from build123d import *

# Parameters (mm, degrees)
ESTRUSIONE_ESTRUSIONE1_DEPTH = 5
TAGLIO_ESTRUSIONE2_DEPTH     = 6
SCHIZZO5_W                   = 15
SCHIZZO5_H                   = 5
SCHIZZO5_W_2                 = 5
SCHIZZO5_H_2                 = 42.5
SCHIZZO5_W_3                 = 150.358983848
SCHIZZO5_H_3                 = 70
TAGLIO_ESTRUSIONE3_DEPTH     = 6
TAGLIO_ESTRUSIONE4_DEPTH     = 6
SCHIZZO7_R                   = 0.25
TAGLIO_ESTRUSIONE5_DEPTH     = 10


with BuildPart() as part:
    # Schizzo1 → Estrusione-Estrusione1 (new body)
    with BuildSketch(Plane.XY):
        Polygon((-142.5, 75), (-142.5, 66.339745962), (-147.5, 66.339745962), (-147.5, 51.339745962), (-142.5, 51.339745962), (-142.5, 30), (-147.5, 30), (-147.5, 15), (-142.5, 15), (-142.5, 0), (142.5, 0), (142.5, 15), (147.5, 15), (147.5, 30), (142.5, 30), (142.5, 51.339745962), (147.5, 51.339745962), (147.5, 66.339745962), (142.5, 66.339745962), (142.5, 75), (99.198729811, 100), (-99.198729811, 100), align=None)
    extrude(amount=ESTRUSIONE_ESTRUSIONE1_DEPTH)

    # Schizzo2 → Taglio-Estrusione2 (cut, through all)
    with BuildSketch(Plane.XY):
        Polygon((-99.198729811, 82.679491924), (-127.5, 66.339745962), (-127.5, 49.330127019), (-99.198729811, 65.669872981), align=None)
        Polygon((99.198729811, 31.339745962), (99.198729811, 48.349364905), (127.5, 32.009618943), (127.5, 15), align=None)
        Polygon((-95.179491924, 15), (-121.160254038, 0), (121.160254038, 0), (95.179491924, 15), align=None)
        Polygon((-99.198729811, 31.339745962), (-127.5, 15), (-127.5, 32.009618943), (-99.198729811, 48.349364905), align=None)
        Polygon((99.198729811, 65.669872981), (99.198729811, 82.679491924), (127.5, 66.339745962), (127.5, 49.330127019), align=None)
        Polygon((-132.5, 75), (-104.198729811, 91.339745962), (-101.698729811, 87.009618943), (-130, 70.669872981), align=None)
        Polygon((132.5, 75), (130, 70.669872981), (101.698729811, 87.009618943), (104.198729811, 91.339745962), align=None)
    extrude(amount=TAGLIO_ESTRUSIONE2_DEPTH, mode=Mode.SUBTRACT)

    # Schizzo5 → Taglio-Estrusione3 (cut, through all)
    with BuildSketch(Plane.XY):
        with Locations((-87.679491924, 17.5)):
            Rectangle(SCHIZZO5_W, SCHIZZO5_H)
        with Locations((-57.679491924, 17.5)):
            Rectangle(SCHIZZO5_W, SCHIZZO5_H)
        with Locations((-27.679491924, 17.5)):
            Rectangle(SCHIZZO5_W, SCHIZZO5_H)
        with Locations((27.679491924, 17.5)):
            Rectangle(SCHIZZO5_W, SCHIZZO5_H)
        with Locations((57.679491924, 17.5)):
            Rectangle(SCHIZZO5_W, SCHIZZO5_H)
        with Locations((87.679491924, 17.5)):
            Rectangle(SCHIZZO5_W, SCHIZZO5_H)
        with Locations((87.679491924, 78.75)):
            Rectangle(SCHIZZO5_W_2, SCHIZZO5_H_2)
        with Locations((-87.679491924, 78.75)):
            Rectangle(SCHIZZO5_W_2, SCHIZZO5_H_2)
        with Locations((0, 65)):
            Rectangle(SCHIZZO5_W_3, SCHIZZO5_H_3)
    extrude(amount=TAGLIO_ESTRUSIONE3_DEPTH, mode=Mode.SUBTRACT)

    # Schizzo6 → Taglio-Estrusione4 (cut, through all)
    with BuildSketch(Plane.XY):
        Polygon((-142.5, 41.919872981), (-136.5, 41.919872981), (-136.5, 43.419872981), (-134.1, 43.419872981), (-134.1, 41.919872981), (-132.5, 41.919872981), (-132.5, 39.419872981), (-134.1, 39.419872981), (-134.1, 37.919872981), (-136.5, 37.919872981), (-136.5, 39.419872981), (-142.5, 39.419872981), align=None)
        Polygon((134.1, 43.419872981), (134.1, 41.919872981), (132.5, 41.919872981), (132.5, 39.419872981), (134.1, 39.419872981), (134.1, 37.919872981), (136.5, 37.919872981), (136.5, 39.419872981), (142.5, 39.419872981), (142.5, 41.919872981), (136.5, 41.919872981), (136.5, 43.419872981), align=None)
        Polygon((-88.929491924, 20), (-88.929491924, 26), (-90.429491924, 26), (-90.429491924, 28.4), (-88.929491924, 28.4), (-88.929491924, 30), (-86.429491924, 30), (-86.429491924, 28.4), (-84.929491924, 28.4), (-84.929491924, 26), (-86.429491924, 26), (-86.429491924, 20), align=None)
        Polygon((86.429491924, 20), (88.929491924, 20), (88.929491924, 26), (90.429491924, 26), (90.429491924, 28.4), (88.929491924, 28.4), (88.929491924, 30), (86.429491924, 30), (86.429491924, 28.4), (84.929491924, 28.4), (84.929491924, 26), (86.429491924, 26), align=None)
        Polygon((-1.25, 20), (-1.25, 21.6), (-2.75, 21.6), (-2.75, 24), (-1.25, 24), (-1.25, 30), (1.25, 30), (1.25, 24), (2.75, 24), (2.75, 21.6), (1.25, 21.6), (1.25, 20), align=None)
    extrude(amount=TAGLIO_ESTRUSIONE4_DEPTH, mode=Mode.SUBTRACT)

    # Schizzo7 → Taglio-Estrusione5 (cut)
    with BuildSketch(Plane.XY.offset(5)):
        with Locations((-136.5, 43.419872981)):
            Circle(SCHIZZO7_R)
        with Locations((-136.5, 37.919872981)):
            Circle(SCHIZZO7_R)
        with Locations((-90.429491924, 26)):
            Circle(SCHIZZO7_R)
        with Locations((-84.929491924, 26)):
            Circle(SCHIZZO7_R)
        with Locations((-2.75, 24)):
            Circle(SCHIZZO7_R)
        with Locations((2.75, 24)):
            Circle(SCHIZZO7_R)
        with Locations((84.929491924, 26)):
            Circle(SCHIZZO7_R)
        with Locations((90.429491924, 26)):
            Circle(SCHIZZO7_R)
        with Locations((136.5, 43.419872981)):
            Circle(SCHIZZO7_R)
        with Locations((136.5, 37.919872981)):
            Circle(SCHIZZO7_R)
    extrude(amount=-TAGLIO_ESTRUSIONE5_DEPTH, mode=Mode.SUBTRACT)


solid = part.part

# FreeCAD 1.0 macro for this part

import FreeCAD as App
import Part
import Sketcher

V = App.Vector
Q = App.Units.Quantity

doc = App.newDocument("Part")
body = doc.addObject("PartDesign::Body", "Body")

# Sketch on XY plane
sketch1 = body.newObject("Sketcher::SketchObject", "Sketch")
sketch1.AttachmentSupport = (doc.getObject("XY_Plane"), [""])
sketch1.MapMode = "FlatFace"
sketch1.addGeometry([
    Part.LineSegment(V(-142.5, 75, 0), V(-142.5, 66.339746, 0)),  # 0
    Part.LineSegment(V(-142.5, 66.339746, 0), V(-147.5, 66.339746, 0)),  # 1
    Part.LineSegment(V(-147.5, 66.339746, 0), V(-147.5, 51.339746, 0)),  # 2
    Part.LineSegment(V(-147.5, 51.339746, 0), V(-142.5, 51.339746, 0)),  # 3
    Part.LineSegment(V(-142.5, 51.339746, 0), V(-142.5, 30, 0)),  # 4
    Part.LineSegment(V(-142.5, 30, 0), V(-147.5, 30, 0)),  # 5
    Part.LineSegment(V(-147.5, 30, 0), V(-147.5, 15, 0)),  # 6
    Part.LineSegment(V(-147.5, 15, 0), V(-142.5, 15, 0)),  # 7
    Part.LineSegment(V(-142.5, 15, 0), V(-142.5, 0, 0)),  # 8
    Part.LineSegment(V(-142.5, 0, 0), V(142.5, 0, 0)),  # 9
    Part.LineSegment(V(142.5, 0, 0), V(142.5, 15, 0)),  # 10
    Part.LineSegment(V(142.5, 15, 0), V(147.5, 15, 0)),  # 11
    Part.LineSegment(V(147.5, 15, 0), V(147.5, 30, 0)),  # 12
    Part.LineSegment(V(147.5, 30, 0), V(142.5, 30, 0)),  # 13
    Part.LineSegment(V(142.5, 30, 0), V(142.5, 51.339746, 0)),  # 14
    Part.LineSegment(V(142.5, 51.339746, 0), V(147.5, 51.339746, 0)),  # 15
    Part.LineSegment(V(147.5, 51.339746, 0), V(147.5, 66.339746, 0)),  # 16
    Part.LineSegment(V(147.5, 66.339746, 0), V(142.5, 66.339746, 0)),  # 17
    Part.LineSegment(V(142.5, 66.339746, 0), V(142.5, 75, 0)),  # 18
    Part.LineSegment(V(142.5, 75, 0), V(99.19873, 100, 0)),  # 19
    Part.LineSegment(V(99.19873, 100, 0), V(-99.19873, 100, 0)),  # 20
    Part.LineSegment(V(-99.19873, 100, 0), V(-142.5, 75, 0)),  # 21
], False)
sketch1.addConstraint([
    Sketcher.Constraint("Coincident", 0, 2, 1, 1),
    Sketcher.Constraint("Coincident", 1, 2, 2, 1),
    Sketcher.Constraint("Coincident", 2, 2, 3, 1),
    Sketcher.Constraint("Coincident", 3, 2, 4, 1),
    Sketcher.Constraint("Coincident", 4, 2, 5, 1),
    Sketcher.Constraint("Coincident", 5, 2, 6, 1),
    Sketcher.Constraint("Coincident", 6, 2, 7, 1),
    Sketcher.Constraint("Coincident", 7, 2, 8, 1),
    Sketcher.Constraint("Coincident", 8, 2, 9, 1),
    Sketcher.Constraint("Coincident", 9, 2, 10, 1),
    Sketcher.Constraint("Coincident", 10, 2, 11, 1),
    Sketcher.Constraint("Coincident", 11, 2, 12, 1),
    Sketcher.Constraint("Coincident", 12, 2, 13, 1),
    Sketcher.Constraint("Coincident", 13, 2, 14, 1),
    Sketcher.Constraint("Coincident", 14, 2, 15, 1),
    Sketcher.Constraint("Coincident", 15, 2, 16, 1),
    Sketcher.Constraint("Coincident", 16, 2, 17, 1),
    Sketcher.Constraint("Coincident", 17, 2, 18, 1),
    Sketcher.Constraint("Coincident", 18, 2, 19, 1),
    Sketcher.Constraint("Coincident", 19, 2, 20, 1),
    Sketcher.Constraint("Coincident", 20, 2, 21, 1),
    Sketcher.Constraint("Coincident", 21, 2, 0, 1),
    Sketcher.Constraint("Vertical", 0),
    Sketcher.Constraint("Horizontal", 1),
    Sketcher.Constraint("Vertical", 2),
    Sketcher.Constraint("Horizontal", 3),
    Sketcher.Constraint("Vertical", 4),
    Sketcher.Constraint("Horizontal", 5),
    Sketcher.Constraint("Vertical", 6),
    Sketcher.Constraint("Horizontal", 7),
    Sketcher.Constraint("Vertical", 8),
    Sketcher.Constraint("Horizontal", 9),
    Sketcher.Constraint("Vertical", 10),
    Sketcher.Constraint("Horizontal", 11),
    Sketcher.Constraint("Vertical", 12),
    Sketcher.Constraint("Horizontal", 13),
    Sketcher.Constraint("Vertical", 14),
    Sketcher.Constraint("Horizontal", 15),
    Sketcher.Constraint("Vertical", 16),
    Sketcher.Constraint("Horizontal", 17),
    Sketcher.Constraint("Vertical", 18),
    Sketcher.Constraint("Horizontal", 20),
    Sketcher.Constraint("Symmetric", 8, 2, 9, 2, -1, 1),
    Sketcher.Constraint("Symmetric", 6, 2, 11, 2, -2),
    Sketcher.Constraint("Symmetric", 4, 2, 13, 2, -2),
    Sketcher.Constraint("Symmetric", 2, 2, 15, 2, -2),
    Sketcher.Constraint("Symmetric", 0, 2, 17, 2, -2),
    Sketcher.Constraint("Horizontal", 18, 2, 21, 2),
    Sketcher.Constraint("Vertical", 0, 2, 3, 2),
    Sketcher.Constraint("Vertical", 2, 2, 5, 2),
    Sketcher.Constraint("Vertical", 4, 2, 7, 2),
    Sketcher.Constraint("Equal", 2, 6),
    Sketcher.Constraint("Equal", 6, 8),
    Sketcher.Constraint("Equal", 19, 21),
    Sketcher.Constraint("DistanceX", 1, 2, 1, 1, Q("5 mm")),
    Sketcher.Constraint("DistanceX", 9, 1, 9, 2, Q("285 mm")),
    Sketcher.Constraint("DistanceY", 2, 2, 2, 1, Q("15 mm")),
    Sketcher.Constraint("Angle", 19, Q("150 deg")),
    Sketcher.Constraint("Distance", 19, Q("50 mm")),
    Sketcher.Constraint("DistanceY", -1, 1, 18, 2, Q("75 mm")),
    Sketcher.Constraint("DistanceY", 0, 2, 0, 1, Q("8.660254 mm")),
])
pad1 = body.newObject("PartDesign::Pad", "Pad")
pad1.Profile = sketch1
pad1.Length = 5

# Sketch on XY plane
sketch2 = body.newObject("Sketcher::SketchObject", "Sketch001")
sketch2.AttachmentSupport = (doc.getObject("XY_Plane"), [""])
sketch2.MapMode = "FlatFace"
sketch2.addGeometry([
    Part.LineSegment(V(-99.19873, 82.679492, 0), V(-127.5, 66.339746, 0)),  # 0
    Part.LineSegment(V(-127.5, 66.339746, 0), V(-127.5, 49.330127, 0)),  # 1
    Part.LineSegment(V(-127.5, 49.330127, 0), V(-99.19873, 65.669873, 0)),  # 2
    Part.LineSegment(V(-99.19873, 65.669873, 0), V(-99.19873, 82.679492, 0)),  # 3
    Part.LineSegment(V(99.19873, 48.349365, 0), V(99.19873, 31.339746, 0)),  # 4
    Part.LineSegment(V(99.19873, 31.339746, 0), V(127.5, 15, 0)),  # 5
    Part.LineSegment(V(127.5, 15, 0), V(127.5, 32.009619, 0)),  # 6
    Part.LineSegment(V(127.5, 32.009619, 0), V(99.19873, 48.349365, 0)),  # 7
    Part.LineSegment(V(-95.179492, 15, 0), V(-121.160254, 0, 0)),  # 8
    Part.LineSegment(V(-121.160254, 0, 0), V(121.160254, 0, 0)),  # 9
    Part.LineSegment(V(121.160254, 0, 0), V(95.179492, 15, 0)),  # 10
    Part.LineSegment(V(95.179492, 15, 0), V(-95.179492, 15, 0)),  # 11
    Part.LineSegment(V(-127.5, 15, 0), V(-99.19873, 31.339746, 0)),  # 12
    Part.LineSegment(V(-99.19873, 31.339746, 0), V(-99.19873, 48.349365, 0)),  # 13
    Part.LineSegment(V(-99.19873, 48.349365, 0), V(-127.5, 32.009619, 0)),  # 14
    Part.LineSegment(V(-127.5, 32.009619, 0), V(-127.5, 15, 0)),  # 15
    Part.LineSegment(V(99.19873, 82.679492, 0), V(99.19873, 65.669873, 0)),  # 16
    Part.LineSegment(V(99.19873, 65.669873, 0), V(127.5, 49.330127, 0)),  # 17
    Part.LineSegment(V(127.5, 49.330127, 0), V(127.5, 66.339746, 0)),  # 18
    Part.LineSegment(V(127.5, 66.339746, 0), V(99.19873, 82.679492, 0)),  # 19
    Part.LineSegment(V(-104.19873, 91.339746, 0), V(-132.5, 75, 0)),  # 20
    Part.LineSegment(V(-132.5, 75, 0), V(-130, 70.669873, 0)),  # 21
    Part.LineSegment(V(-130, 70.669873, 0), V(-101.69873, 87.009619, 0)),  # 22
    Part.LineSegment(V(-101.69873, 87.009619, 0), V(-104.19873, 91.339746, 0)),  # 23
    Part.LineSegment(V(130, 70.669873, 0), V(132.5, 75, 0)),  # 24
    Part.LineSegment(V(132.5, 75, 0), V(104.19873, 91.339746, 0)),  # 25
    Part.LineSegment(V(104.19873, 91.339746, 0), V(101.69873, 87.009619, 0)),  # 26
    Part.LineSegment(V(101.69873, 87.009619, 0), V(130, 70.669873, 0)),  # 27
], False)
sketch2.addConstraint([
    Sketcher.Constraint("Coincident", 0, 2, 1, 1),
    Sketcher.Constraint("Coincident", 1, 2, 2, 1),
    Sketcher.Constraint("Coincident", 2, 2, 3, 1),
    Sketcher.Constraint("Coincident", 3, 2, 0, 1),
    Sketcher.Constraint("Coincident", 4, 2, 5, 1),
    Sketcher.Constraint("Coincident", 5, 2, 6, 1),
    Sketcher.Constraint("Coincident", 6, 2, 7, 1),
    Sketcher.Constraint("Coincident", 7, 2, 4, 1),
    Sketcher.Constraint("Coincident", 8, 2, 9, 1),
    Sketcher.Constraint("Coincident", 9, 2, 10, 1),
    Sketcher.Constraint("Coincident", 10, 2, 11, 1),
    Sketcher.Constraint("Coincident", 11, 2, 8, 1),
    Sketcher.Constraint("Coincident", 12, 2, 13, 1),
    Sketcher.Constraint("Coincident", 13, 2, 14, 1),
    Sketcher.Constraint("Coincident", 14, 2, 15, 1),
    Sketcher.Constraint("Coincident", 15, 2, 12, 1),
    Sketcher.Constraint("Coincident", 16, 2, 17, 1),
    Sketcher.Constraint("Coincident", 17, 2, 18, 1),
    Sketcher.Constraint("Coincident", 18, 2, 19, 1),
    Sketcher.Constraint("Coincident", 19, 2, 16, 1),
    Sketcher.Constraint("Coincident", 20, 2, 21, 1),
    Sketcher.Constraint("Coincident", 21, 2, 22, 1),
    Sketcher.Constraint("Coincident", 22, 2, 23, 1),
    Sketcher.Constraint("Coincident", 23, 2, 20, 1),
    Sketcher.Constraint("Coincident", 24, 2, 25, 1),
    Sketcher.Constraint("Coincident", 25, 2, 26, 1),
    Sketcher.Constraint("Coincident", 26, 2, 27, 1),
    Sketcher.Constraint("Coincident", 27, 2, 24, 1),
    Sketcher.Constraint("Vertical", 1),
    Sketcher.Constraint("Vertical", 3),
    Sketcher.Constraint("Vertical", 4),
    Sketcher.Constraint("Vertical", 6),
    Sketcher.Constraint("Horizontal", 9),
    Sketcher.Constraint("Horizontal", 11),
    Sketcher.Constraint("Vertical", 13),
    Sketcher.Constraint("Vertical", 15),
    Sketcher.Constraint("Vertical", 16),
    Sketcher.Constraint("Vertical", 18),
    Sketcher.Constraint("Symmetric", 8, 2, 9, 2, -1, 1),
    Sketcher.Constraint("Symmetric", 4, 2, 12, 2, -2),
    Sketcher.Constraint("Symmetric", 6, 2, 14, 2, -2),
    Sketcher.Constraint("Symmetric", 2, 2, 16, 2, -2),
    Sketcher.Constraint("Symmetric", 1, 2, 17, 2, -2),
    Sketcher.Constraint("Symmetric", 20, 2, 24, 2, -2),
    Sketcher.Constraint("Symmetric", 23, 2, 25, 2, -2),
    Sketcher.Constraint("Symmetric", 22, 2, 26, 2, -2),
    Sketcher.Constraint("Symmetric", 21, 2, 27, 2, -2),
    Sketcher.Constraint("Parallel", 0, 2),
    Sketcher.Constraint("Parallel", 5, 7),
    Sketcher.Constraint("Parallel", 2, 8),
    Sketcher.Constraint("Parallel", 7, 10),
    Sketcher.Constraint("Parallel", 8, 12),
    Sketcher.Constraint("Parallel", 12, 14),
    Sketcher.Constraint("Parallel", 10, 17),
    Sketcher.Constraint("Parallel", 17, 19),
    Sketcher.Constraint("Parallel", 14, 20),
    Sketcher.Constraint("Perpendicular", 20, 21),
    Sketcher.Constraint("Perpendicular", 21, 22),
    Sketcher.Constraint("Perpendicular", 22, 23),
    Sketcher.Constraint("Horizontal", 5, 2, 10, 2),
    Sketcher.Constraint("Horizontal", 0, 2, 18, 2),
    Sketcher.Constraint("Vertical", 3, 2, 12, 2),
    Sketcher.Constraint("Vertical", 1, 2, 14, 2),
    Sketcher.Constraint("Equal", 3, 4),
    Sketcher.Constraint("Equal", 19, 20),
    Sketcher.Constraint("Angle", 0, Q("-150 deg")),
    Sketcher.Constraint("Distance", 8, Q("30 mm")),
    Sketcher.Constraint("Distance", 21, Q("5 mm")),
    Sketcher.Constraint("DistanceY", -1, 1, 20, 2, Q("75 mm")),
    Sketcher.Constraint("DistanceX", 21, 2, -1, 1, Q("130 mm")),
    Sketcher.Constraint("DistanceY", 4, 2, 0, 2, Q("35 mm")),
    Sketcher.Constraint("DistanceX", 1, 2, 5, 2, Q("255 mm")),
    Sketcher.Constraint("DistanceY", 2, 2, 21, 2, Q("5 mm")),
    Sketcher.Constraint("DistanceX", 9, 1, 9, 2, Q("242.320508 mm")),
    Sketcher.Constraint("DistanceY", 1, 2, 1, 1, Q("17.009619 mm")),
])
pocket1 = body.newObject("PartDesign::Pocket", "Pocket")
pocket1.Profile = sketch2
pocket1.Type = "ThroughAll"
pocket1.Reversed = True

# Sketch on XY plane
sketch3 = body.newObject("Sketcher::SketchObject", "Sketch002")
sketch3.AttachmentSupport = (doc.getObject("XY_Plane"), [""])
sketch3.MapMode = "FlatFace"
sketch3.addGeometry([
    Part.LineSegment(V(-95.179492, 20, 0), V(-95.179492, 15, 0)),  # 0
    Part.LineSegment(V(-95.179492, 15, 0), V(-80.179492, 15, 0)),  # 1
    Part.LineSegment(V(-80.179492, 15, 0), V(-80.179492, 20, 0)),  # 2
    Part.LineSegment(V(-80.179492, 20, 0), V(-95.179492, 20, 0)),  # 3
    Part.LineSegment(V(-65.179492, 20, 0), V(-65.179492, 15, 0)),  # 4
    Part.LineSegment(V(-65.179492, 15, 0), V(-50.179492, 15, 0)),  # 5
    Part.LineSegment(V(-50.179492, 15, 0), V(-50.179492, 20, 0)),  # 6
    Part.LineSegment(V(-50.179492, 20, 0), V(-65.179492, 20, 0)),  # 7
    Part.LineSegment(V(-35.179492, 20, 0), V(-35.179492, 15, 0)),  # 8
    Part.LineSegment(V(-35.179492, 15, 0), V(-20.179492, 15, 0)),  # 9
    Part.LineSegment(V(-20.179492, 15, 0), V(-20.179492, 20, 0)),  # 10
    Part.LineSegment(V(-20.179492, 20, 0), V(-35.179492, 20, 0)),  # 11
    Part.LineSegment(V(20.179492, 20, 0), V(20.179492, 15, 0)),  # 12
    Part.LineSegment(V(20.179492, 15, 0), V(35.179492, 15, 0)),  # 13
    Part.LineSegment(V(35.179492, 15, 0), V(35.179492, 20, 0)),  # 14
    Part.LineSegment(V(35.179492, 20, 0), V(20.179492, 20, 0)),  # 15
    Part.LineSegment(V(50.179492, 20, 0), V(50.179492, 15, 0)),  # 16
    Part.LineSegment(V(50.179492, 15, 0), V(65.179492, 15, 0)),  # 17
    Part.LineSegment(V(65.179492, 15, 0), V(65.179492, 20, 0)),  # 18
    Part.LineSegment(V(65.179492, 20, 0), V(50.179492, 20, 0)),  # 19
    Part.LineSegment(V(80.179492, 20, 0), V(80.179492, 15, 0)),  # 20
    Part.LineSegment(V(80.179492, 15, 0), V(95.179492, 15, 0)),  # 21
    Part.LineSegment(V(95.179492, 15, 0), V(95.179492, 20, 0)),  # 22
    Part.LineSegment(V(95.179492, 20, 0), V(80.179492, 20, 0)),  # 23
    Part.LineSegment(V(85.179492, 100, 0), V(85.179492, 57.5, 0)),  # 24
    Part.LineSegment(V(85.179492, 57.5, 0), V(90.179492, 57.5, 0)),  # 25
    Part.LineSegment(V(90.179492, 57.5, 0), V(90.179492, 100, 0)),  # 26
    Part.LineSegment(V(90.179492, 100, 0), V(85.179492, 100, 0)),  # 27
    Part.LineSegment(V(-90.179492, 100, 0), V(-90.179492, 57.5, 0)),  # 28
    Part.LineSegment(V(-90.179492, 57.5, 0), V(-85.179492, 57.5, 0)),  # 29
    Part.LineSegment(V(-85.179492, 57.5, 0), V(-85.179492, 100, 0)),  # 30
    Part.LineSegment(V(-85.179492, 100, 0), V(-90.179492, 100, 0)),  # 31
    Part.LineSegment(V(-75.179492, 100, 0), V(-75.179492, 30, 0)),  # 32
    Part.LineSegment(V(-75.179492, 30, 0), V(75.179492, 30, 0)),  # 33
    Part.LineSegment(V(75.179492, 30, 0), V(75.179492, 100, 0)),  # 34
    Part.LineSegment(V(75.179492, 100, 0), V(-75.179492, 100, 0)),  # 35
], False)
sketch3.addConstraint([
    Sketcher.Constraint("Coincident", 0, 2, 1, 1),
    Sketcher.Constraint("Coincident", 1, 2, 2, 1),
    Sketcher.Constraint("Coincident", 2, 2, 3, 1),
    Sketcher.Constraint("Coincident", 3, 2, 0, 1),
    Sketcher.Constraint("Coincident", 4, 2, 5, 1),
    Sketcher.Constraint("Coincident", 5, 2, 6, 1),
    Sketcher.Constraint("Coincident", 6, 2, 7, 1),
    Sketcher.Constraint("Coincident", 7, 2, 4, 1),
    Sketcher.Constraint("Coincident", 8, 2, 9, 1),
    Sketcher.Constraint("Coincident", 9, 2, 10, 1),
    Sketcher.Constraint("Coincident", 10, 2, 11, 1),
    Sketcher.Constraint("Coincident", 11, 2, 8, 1),
    Sketcher.Constraint("Coincident", 12, 2, 13, 1),
    Sketcher.Constraint("Coincident", 13, 2, 14, 1),
    Sketcher.Constraint("Coincident", 14, 2, 15, 1),
    Sketcher.Constraint("Coincident", 15, 2, 12, 1),
    Sketcher.Constraint("Coincident", 16, 2, 17, 1),
    Sketcher.Constraint("Coincident", 17, 2, 18, 1),
    Sketcher.Constraint("Coincident", 18, 2, 19, 1),
    Sketcher.Constraint("Coincident", 19, 2, 16, 1),
    Sketcher.Constraint("Coincident", 20, 2, 21, 1),
    Sketcher.Constraint("Coincident", 21, 2, 22, 1),
    Sketcher.Constraint("Coincident", 22, 2, 23, 1),
    Sketcher.Constraint("Coincident", 23, 2, 20, 1),
    Sketcher.Constraint("Coincident", 24, 2, 25, 1),
    Sketcher.Constraint("Coincident", 25, 2, 26, 1),
    Sketcher.Constraint("Coincident", 26, 2, 27, 1),
    Sketcher.Constraint("Coincident", 27, 2, 24, 1),
    Sketcher.Constraint("Coincident", 28, 2, 29, 1),
    Sketcher.Constraint("Coincident", 29, 2, 30, 1),
    Sketcher.Constraint("Coincident", 30, 2, 31, 1),
    Sketcher.Constraint("Coincident", 31, 2, 28, 1),
    Sketcher.Constraint("Coincident", 32, 2, 33, 1),
    Sketcher.Constraint("Coincident", 33, 2, 34, 1),
    Sketcher.Constraint("Coincident", 34, 2, 35, 1),
    Sketcher.Constraint("Coincident", 35, 2, 32, 1),
    Sketcher.Constraint("Vertical", 0),
    Sketcher.Constraint("Horizontal", 1),
    Sketcher.Constraint("Vertical", 2),
    Sketcher.Constraint("Horizontal", 3),
    Sketcher.Constraint("Vertical", 4),
    Sketcher.Constraint("Horizontal", 5),
    Sketcher.Constraint("Vertical", 6),
    Sketcher.Constraint("Horizontal", 7),
    Sketcher.Constraint("Vertical", 8),
    Sketcher.Constraint("Horizontal", 9),
    Sketcher.Constraint("Vertical", 10),
    Sketcher.Constraint("Horizontal", 11),
    Sketcher.Constraint("Vertical", 12),
    Sketcher.Constraint("Horizontal", 13),
    Sketcher.Constraint("Vertical", 14),
    Sketcher.Constraint("Horizontal", 15),
    Sketcher.Constraint("Vertical", 16),
    Sketcher.Constraint("Horizontal", 17),
    Sketcher.Constraint("Vertical", 18),
    Sketcher.Constraint("Horizontal", 19),
    Sketcher.Constraint("Vertical", 20),
    Sketcher.Constraint("Horizontal", 21),
    Sketcher.Constraint("Vertical", 22),
    Sketcher.Constraint("Horizontal", 23),
    Sketcher.Constraint("Vertical", 24),
    Sketcher.Constraint("Horizontal", 25),
    Sketcher.Constraint("Vertical", 26),
    Sketcher.Constraint("Horizontal", 27),
    Sketcher.Constraint("Vertical", 28),
    Sketcher.Constraint("Horizontal", 29),
    Sketcher.Constraint("Vertical", 30),
    Sketcher.Constraint("Horizontal", 31),
    Sketcher.Constraint("Vertical", 32),
    Sketcher.Constraint("Horizontal", 33),
    Sketcher.Constraint("Vertical", 34),
    Sketcher.Constraint("Horizontal", 35),
    Sketcher.Constraint("Symmetric", 9, 2, 12, 2, -2),
    Sketcher.Constraint("Symmetric", 11, 2, 14, 2, -2),
    Sketcher.Constraint("Symmetric", 5, 2, 16, 2, -2),
    Sketcher.Constraint("Symmetric", 7, 2, 18, 2, -2),
    Sketcher.Constraint("Symmetric", 1, 2, 20, 2, -2),
    Sketcher.Constraint("Symmetric", 3, 2, 22, 2, -2),
    Sketcher.Constraint("Symmetric", 25, 2, 28, 2, -2),
    Sketcher.Constraint("Symmetric", 27, 2, 30, 2, -2),
    Sketcher.Constraint("Horizontal", 1, 2, 4, 2),
    Sketcher.Constraint("Horizontal", 3, 2, 6, 2),
    Sketcher.Constraint("Horizontal", 5, 2, 8, 2),
    Sketcher.Constraint("Horizontal", 7, 2, 10, 2),
    Sketcher.Constraint("Horizontal", 31, 2, 34, 2),
    Sketcher.Constraint("Equal", 3, 5),
    Sketcher.Constraint("Equal", 7, 9),
    Sketcher.Constraint("Equal", 31, 0),
    Sketcher.Constraint("DistanceX", 1, 1, 1, 2, Q("15 mm")),
    Sketcher.Constraint("DistanceX", 25, 1, 25, 2, Q("5 mm")),
    Sketcher.Constraint("DistanceY", 32, 2, 32, 1, Q("70 mm")),
    Sketcher.Constraint("DistanceY", 24, 2, 24, 1, Q("42.5 mm")),
    Sketcher.Constraint("DistanceY", -1, 1, 0, 2, Q("15 mm")),
    Sketcher.Constraint("DistanceY", -1, 1, 26, 2, Q("100 mm")),
    Sketcher.Constraint("DistanceX", 1, 2, 4, 2, Q("15 mm")),
    Sketcher.Constraint("DistanceX", 5, 2, 8, 2, Q("15 mm")),
    Sketcher.Constraint("DistanceX", 23, 2, 24, 2, Q("5 mm")),
    Sketcher.Constraint("DistanceX", 2, 2, 32, 2, Q("5 mm")),
    Sketcher.Constraint("DistanceX", 33, 2, 23, 2, Q("5 mm")),
    Sketcher.Constraint("DistanceX", 33, 1, 33, 2, Q("150.358984 mm")),
])
pocket2 = body.newObject("PartDesign::Pocket", "Pocket001")
pocket2.Profile = sketch3
pocket2.Type = "ThroughAll"
pocket2.Reversed = True

# Sketch on XY plane
sketch4 = body.newObject("Sketcher::SketchObject", "Sketch003")
sketch4.AttachmentSupport = (doc.getObject("XY_Plane"), [""])
sketch4.MapMode = "FlatFace"
sketch4.addGeometry([
    Part.LineSegment(V(-136.5, 41.919873, 0), V(-142.5, 41.919873, 0)),  # 0
    Part.LineSegment(V(-142.5, 41.919873, 0), V(-142.5, 39.419873, 0)),  # 1
    Part.LineSegment(V(-142.5, 39.419873, 0), V(-136.5, 39.419873, 0)),  # 2
    Part.LineSegment(V(-136.5, 39.419873, 0), V(-136.5, 37.919873, 0)),  # 3
    Part.LineSegment(V(-136.5, 37.919873, 0), V(-134.1, 37.919873, 0)),  # 4
    Part.LineSegment(V(-134.1, 37.919873, 0), V(-134.1, 39.419873, 0)),  # 5
    Part.LineSegment(V(-134.1, 39.419873, 0), V(-132.5, 39.419873, 0)),  # 6
    Part.LineSegment(V(-132.5, 39.419873, 0), V(-132.5, 41.919873, 0)),  # 7
    Part.LineSegment(V(-132.5, 41.919873, 0), V(-134.1, 41.919873, 0)),  # 8
    Part.LineSegment(V(-134.1, 41.919873, 0), V(-134.1, 43.419873, 0)),  # 9
    Part.LineSegment(V(-134.1, 43.419873, 0), V(-136.5, 43.419873, 0)),  # 10
    Part.LineSegment(V(-136.5, 43.419873, 0), V(-136.5, 41.919873, 0)),  # 11
    Part.LineSegment(V(134.1, 43.419873, 0), V(134.1, 41.919873, 0)),  # 12
    Part.LineSegment(V(134.1, 41.919873, 0), V(132.5, 41.919873, 0)),  # 13
    Part.LineSegment(V(132.5, 41.919873, 0), V(132.5, 39.419873, 0)),  # 14
    Part.LineSegment(V(132.5, 39.419873, 0), V(134.1, 39.419873, 0)),  # 15
    Part.LineSegment(V(134.1, 39.419873, 0), V(134.1, 37.919873, 0)),  # 16
    Part.LineSegment(V(134.1, 37.919873, 0), V(136.5, 37.919873, 0)),  # 17
    Part.LineSegment(V(136.5, 37.919873, 0), V(136.5, 39.419873, 0)),  # 18
    Part.LineSegment(V(136.5, 39.419873, 0), V(142.5, 39.419873, 0)),  # 19
    Part.LineSegment(V(142.5, 39.419873, 0), V(142.5, 41.919873, 0)),  # 20
    Part.LineSegment(V(142.5, 41.919873, 0), V(136.5, 41.919873, 0)),  # 21
    Part.LineSegment(V(136.5, 41.919873, 0), V(136.5, 43.419873, 0)),  # 22
    Part.LineSegment(V(136.5, 43.419873, 0), V(134.1, 43.419873, 0)),  # 23
    Part.LineSegment(V(-88.929492, 26, 0), V(-88.929492, 20, 0)),  # 24
    Part.LineSegment(V(-88.929492, 20, 0), V(-86.429492, 20, 0)),  # 25
    Part.LineSegment(V(-86.429492, 20, 0), V(-86.429492, 26, 0)),  # 26
    Part.LineSegment(V(-86.429492, 26, 0), V(-84.929492, 26, 0)),  # 27
    Part.LineSegment(V(-84.929492, 26, 0), V(-84.929492, 28.4, 0)),  # 28
    Part.LineSegment(V(-84.929492, 28.4, 0), V(-86.429492, 28.4, 0)),  # 29
    Part.LineSegment(V(-86.429492, 28.4, 0), V(-86.429492, 30, 0)),  # 30
    Part.LineSegment(V(-86.429492, 30, 0), V(-88.929492, 30, 0)),  # 31
    Part.LineSegment(V(-88.929492, 30, 0), V(-88.929492, 28.4, 0)),  # 32
    Part.LineSegment(V(-88.929492, 28.4, 0), V(-90.429492, 28.4, 0)),  # 33
    Part.LineSegment(V(-90.429492, 28.4, 0), V(-90.429492, 26, 0)),  # 34
    Part.LineSegment(V(-90.429492, 26, 0), V(-88.929492, 26, 0)),  # 35
    Part.LineSegment(V(86.429492, 20, 0), V(88.929492, 20, 0)),  # 36
    Part.LineSegment(V(88.929492, 20, 0), V(88.929492, 26, 0)),  # 37
    Part.LineSegment(V(88.929492, 26, 0), V(90.429492, 26, 0)),  # 38
    Part.LineSegment(V(90.429492, 26, 0), V(90.429492, 28.4, 0)),  # 39
    Part.LineSegment(V(90.429492, 28.4, 0), V(88.929492, 28.4, 0)),  # 40
    Part.LineSegment(V(88.929492, 28.4, 0), V(88.929492, 30, 0)),  # 41
    Part.LineSegment(V(88.929492, 30, 0), V(86.429492, 30, 0)),  # 42
    Part.LineSegment(V(86.429492, 30, 0), V(86.429492, 28.4, 0)),  # 43
    Part.LineSegment(V(86.429492, 28.4, 0), V(84.929492, 28.4, 0)),  # 44
    Part.LineSegment(V(84.929492, 28.4, 0), V(84.929492, 26, 0)),  # 45
    Part.LineSegment(V(84.929492, 26, 0), V(86.429492, 26, 0)),  # 46
    Part.LineSegment(V(86.429492, 26, 0), V(86.429492, 20, 0)),  # 47
    Part.LineSegment(V(-1.25, 21.6, 0), V(-1.25, 20, 0)),  # 48
    Part.LineSegment(V(-1.25, 20, 0), V(1.25, 20, 0)),  # 49
    Part.LineSegment(V(1.25, 20, 0), V(1.25, 21.6, 0)),  # 50
    Part.LineSegment(V(1.25, 21.6, 0), V(2.75, 21.6, 0)),  # 51
    Part.LineSegment(V(2.75, 21.6, 0), V(2.75, 24, 0)),  # 52
    Part.LineSegment(V(2.75, 24, 0), V(1.25, 24, 0)),  # 53
    Part.LineSegment(V(1.25, 24, 0), V(1.25, 30, 0)),  # 54
    Part.LineSegment(V(1.25, 30, 0), V(-1.25, 30, 0)),  # 55
    Part.LineSegment(V(-1.25, 30, 0), V(-1.25, 24, 0)),  # 56
    Part.LineSegment(V(-1.25, 24, 0), V(-2.75, 24, 0)),  # 57
    Part.LineSegment(V(-2.75, 24, 0), V(-2.75, 21.6, 0)),  # 58
    Part.LineSegment(V(-2.75, 21.6, 0), V(-1.25, 21.6, 0)),  # 59
], False)
sketch4.addConstraint([
    Sketcher.Constraint("Coincident", 0, 2, 1, 1),
    Sketcher.Constraint("Coincident", 1, 2, 2, 1),
    Sketcher.Constraint("Coincident", 2, 2, 3, 1),
    Sketcher.Constraint("Coincident", 3, 2, 4, 1),
    Sketcher.Constraint("Coincident", 4, 2, 5, 1),
    Sketcher.Constraint("Coincident", 5, 2, 6, 1),
    Sketcher.Constraint("Coincident", 6, 2, 7, 1),
    Sketcher.Constraint("Coincident", 7, 2, 8, 1),
    Sketcher.Constraint("Coincident", 8, 2, 9, 1),
    Sketcher.Constraint("Coincident", 9, 2, 10, 1),
    Sketcher.Constraint("Coincident", 10, 2, 11, 1),
    Sketcher.Constraint("Coincident", 11, 2, 0, 1),
    Sketcher.Constraint("Coincident", 12, 2, 13, 1),
    Sketcher.Constraint("Coincident", 13, 2, 14, 1),
    Sketcher.Constraint("Coincident", 14, 2, 15, 1),
    Sketcher.Constraint("Coincident", 15, 2, 16, 1),
    Sketcher.Constraint("Coincident", 16, 2, 17, 1),
    Sketcher.Constraint("Coincident", 17, 2, 18, 1),
    Sketcher.Constraint("Coincident", 18, 2, 19, 1),
    Sketcher.Constraint("Coincident", 19, 2, 20, 1),
    Sketcher.Constraint("Coincident", 20, 2, 21, 1),
    Sketcher.Constraint("Coincident", 21, 2, 22, 1),
    Sketcher.Constraint("Coincident", 22, 2, 23, 1),
    Sketcher.Constraint("Coincident", 23, 2, 12, 1),
    Sketcher.Constraint("Coincident", 24, 2, 25, 1),
    Sketcher.Constraint("Coincident", 25, 2, 26, 1),
    Sketcher.Constraint("Coincident", 26, 2, 27, 1),
    Sketcher.Constraint("Coincident", 27, 2, 28, 1),
    Sketcher.Constraint("Coincident", 28, 2, 29, 1),
    Sketcher.Constraint("Coincident", 29, 2, 30, 1),
    Sketcher.Constraint("Coincident", 30, 2, 31, 1),
    Sketcher.Constraint("Coincident", 31, 2, 32, 1),
    Sketcher.Constraint("Coincident", 32, 2, 33, 1),
    Sketcher.Constraint("Coincident", 33, 2, 34, 1),
    Sketcher.Constraint("Coincident", 34, 2, 35, 1),
    Sketcher.Constraint("Coincident", 35, 2, 24, 1),
    Sketcher.Constraint("Coincident", 36, 2, 37, 1),
    Sketcher.Constraint("Coincident", 37, 2, 38, 1),
    Sketcher.Constraint("Coincident", 38, 2, 39, 1),
    Sketcher.Constraint("Coincident", 39, 2, 40, 1),
    Sketcher.Constraint("Coincident", 40, 2, 41, 1),
    Sketcher.Constraint("Coincident", 41, 2, 42, 1),
    Sketcher.Constraint("Coincident", 42, 2, 43, 1),
    Sketcher.Constraint("Coincident", 43, 2, 44, 1),
    Sketcher.Constraint("Coincident", 44, 2, 45, 1),
    Sketcher.Constraint("Coincident", 45, 2, 46, 1),
    Sketcher.Constraint("Coincident", 46, 2, 47, 1),
    Sketcher.Constraint("Coincident", 47, 2, 36, 1),
    Sketcher.Constraint("Coincident", 48, 2, 49, 1),
    Sketcher.Constraint("Coincident", 49, 2, 50, 1),
    Sketcher.Constraint("Coincident", 50, 2, 51, 1),
    Sketcher.Constraint("Coincident", 51, 2, 52, 1),
    Sketcher.Constraint("Coincident", 52, 2, 53, 1),
    Sketcher.Constraint("Coincident", 53, 2, 54, 1),
    Sketcher.Constraint("Coincident", 54, 2, 55, 1),
    Sketcher.Constraint("Coincident", 55, 2, 56, 1),
    Sketcher.Constraint("Coincident", 56, 2, 57, 1),
    Sketcher.Constraint("Coincident", 57, 2, 58, 1),
    Sketcher.Constraint("Coincident", 58, 2, 59, 1),
    Sketcher.Constraint("Coincident", 59, 2, 48, 1),
    Sketcher.Constraint("Horizontal", 0),
    Sketcher.Constraint("Vertical", 1),
    Sketcher.Constraint("Horizontal", 2),
    Sketcher.Constraint("Vertical", 3),
    Sketcher.Constraint("Horizontal", 4),
    Sketcher.Constraint("Vertical", 5),
    Sketcher.Constraint("Horizontal", 6),
    Sketcher.Constraint("Vertical", 7),
    Sketcher.Constraint("Horizontal", 8),
    Sketcher.Constraint("Vertical", 9),
    Sketcher.Constraint("Horizontal", 10),
    Sketcher.Constraint("Vertical", 11),
    Sketcher.Constraint("Vertical", 12),
    Sketcher.Constraint("Horizontal", 13),
    Sketcher.Constraint("Vertical", 14),
    Sketcher.Constraint("Horizontal", 15),
    Sketcher.Constraint("Vertical", 16),
    Sketcher.Constraint("Horizontal", 17),
    Sketcher.Constraint("Vertical", 18),
    Sketcher.Constraint("Horizontal", 19),
    Sketcher.Constraint("Vertical", 20),
    Sketcher.Constraint("Horizontal", 21),
    Sketcher.Constraint("Vertical", 22),
    Sketcher.Constraint("Horizontal", 23),
    Sketcher.Constraint("Vertical", 24),
    Sketcher.Constraint("Horizontal", 25),
    Sketcher.Constraint("Vertical", 26),
    Sketcher.Constraint("Horizontal", 27),
    Sketcher.Constraint("Vertical", 28),
    Sketcher.Constraint("Horizontal", 29),
    Sketcher.Constraint("Vertical", 30),
    Sketcher.Constraint("Horizontal", 31),
    Sketcher.Constraint("Vertical", 32),
    Sketcher.Constraint("Horizontal", 33),
    Sketcher.Constraint("Vertical", 34),
    Sketcher.Constraint("Horizontal", 35),
    Sketcher.Constraint("Horizontal", 36),
    Sketcher.Constraint("Vertical", 37),
    Sketcher.Constraint("Horizontal", 38),
    Sketcher.Constraint("Vertical", 39),
    Sketcher.Constraint("Horizontal", 40),
    Sketcher.Constraint("Vertical", 41),
    Sketcher.Constraint("Horizontal", 42),
    Sketcher.Constraint("Vertical", 43),
    Sketcher.Constraint("Horizontal", 44),
    Sketcher.Constraint("Vertical", 45),
    Sketcher.Constraint("Horizontal", 46),
    Sketcher.Constraint("Vertical", 47),
    Sketcher.Constraint("Vertical", 48),
    Sketcher.Constraint("Horizontal", 49),
    Sketcher.Constraint("Vertical", 50),
    Sketcher.Constraint("Horizontal", 51),
    Sketcher.Constraint("Vertical", 52),
    Sketcher.Constraint("Horizontal", 53),
    Sketcher.Constraint("Vertical", 54),
    Sketcher.Constraint("Horizontal", 55),
    Sketcher.Constraint("Vertical", 56),
    Sketcher.Constraint("Horizontal", 57),
    Sketcher.Constraint("Vertical", 58),
    Sketcher.Constraint("Horizontal", 59),
    Sketcher.Constraint("Symmetric", 8, 2, 12, 2, -2),
    Sketcher.Constraint("Symmetric", 6, 2, 14, 2, -2),
    Sketcher.Constraint("Symmetric", 4, 2, 16, 2, -2),
    Sketcher.Constraint("Symmetric", 2, 2, 18, 2, -2),
    Sketcher.Constraint("Symmetric", 0, 2, 20, 2, -2),
    Sketcher.Constraint("Symmetric", 10, 2, 22, 2, -2),
    Sketcher.Constraint("Symmetric", 24, 2, 36, 2, -2),
    Sketcher.Constraint("Symmetric", 34, 2, 38, 2, -2),
    Sketcher.Constraint("Symmetric", 32, 2, 40, 2, -2),
    Sketcher.Constraint("Symmetric", 30, 2, 42, 2, -2),
    Sketcher.Constraint("Symmetric", 28, 2, 44, 2, -2),
    Sketcher.Constraint("Symmetric", 26, 2, 46, 2, -2),
    Sketcher.Constraint("Symmetric", 53, 2, 56, 2, -2),
    Sketcher.Constraint("Symmetric", 51, 2, 58, 2, -2),
    Sketcher.Constraint("Horizontal", 2, 2, 5, 2),
    Sketcher.Constraint("Horizontal", 0, 2, 7, 2),
    Sketcher.Constraint("Horizontal", 29, 2, 32, 2),
    Sketcher.Constraint("Horizontal", 27, 2, 34, 2),
    Sketcher.Constraint("Horizontal", 47, 2, 48, 2),
    Sketcher.Constraint("Horizontal", 42, 2, 54, 2),
    Sketcher.Constraint("Vertical", 5, 2, 8, 2),
    Sketcher.Constraint("Vertical", 3, 2, 10, 2),
    Sketcher.Constraint("Vertical", 26, 2, 29, 2),
    Sketcher.Constraint("Vertical", 24, 2, 31, 2),
    Sketcher.Constraint("Vertical", 50, 2, 53, 2),
    Sketcher.Constraint("Vertical", 48, 2, 55, 2),
    Sketcher.Constraint("Equal", 29, 33),
    Sketcher.Constraint("Equal", 42, 49),
    Sketcher.Constraint("Equal", 46, 51),
    Sketcher.Constraint("Equal", 55, 1),
    Sketcher.Constraint("Equal", 59, 3),
    Sketcher.Constraint("Equal", 5, 9),
    Sketcher.Constraint("Equal", 21, 24),
    Sketcher.Constraint("Equal", 23, 28),
    Sketcher.Constraint("Equal", 15, 30),
    Sketcher.Constraint("Equal", 43, 48),
    Sketcher.Constraint("Equal", 45, 52),
    Sketcher.Constraint("DistanceX", 0, 2, 0, 1, Q("6 mm")),
    Sketcher.Constraint("DistanceX", 4, 1, 4, 2, Q("2.4 mm")),
    Sketcher.Constraint("DistanceX", 6, 1, 6, 2, Q("1.6 mm")),
    Sketcher.Constraint("DistanceX", 25, 1, 25, 2, Q("2.5 mm")),
    Sketcher.Constraint("DistanceX", 27, 1, 27, 2, Q("1.5 mm")),
    Sketcher.Constraint("DistanceY", -1, 1, 24, 2, Q("20 mm")),
    Sketcher.Constraint("DistanceX", 7, 2, 13, 2, Q("265 mm")),
    Sketcher.Constraint("DistanceX", 24, 2, -1, 1, Q("88.929492 mm")),
    Sketcher.Constraint("DistanceY", -1, 1, 0, 2, Q("41.919873 mm")),
])
pocket3 = body.newObject("PartDesign::Pocket", "Pocket002")
pocket3.Profile = sketch4
pocket3.Type = "ThroughAll"
pocket3.Reversed = True

# Sketch on XY plane
sketch5 = body.newObject("Sketcher::SketchObject", "Sketch004")
sketch5.AttachmentSupport = (doc.getObject("XY_Plane"), [""])
sketch5.MapMode = "FlatFace"
sketch5.AttachmentOffset = App.Placement(V(0, 0, 5), App.Rotation())
sketch5.addGeometry([
    Part.Circle(V(-136.5, 43.419873, 0), V(0, 0, 1), 0.25),  # 0
    Part.Circle(V(-136.5, 37.919873, 0), V(0, 0, 1), 0.25),  # 1
    Part.Circle(V(-90.429492, 26, 0), V(0, 0, 1), 0.25),  # 2
    Part.Circle(V(-84.929492, 26, 0), V(0, 0, 1), 0.25),  # 3
    Part.Circle(V(-2.75, 24, 0), V(0, 0, 1), 0.25),  # 4
    Part.Circle(V(2.75, 24, 0), V(0, 0, 1), 0.25),  # 5
    Part.Circle(V(84.929492, 26, 0), V(0, 0, 1), 0.25),  # 6
    Part.Circle(V(90.429492, 26, 0), V(0, 0, 1), 0.25),  # 7
    Part.Circle(V(136.5, 43.419873, 0), V(0, 0, 1), 0.25),  # 8
    Part.Circle(V(136.5, 37.919873, 0), V(0, 0, 1), 0.25),  # 9
], False)
sketch5.addConstraint([
    Sketcher.Constraint("Equal", 0, 1),
    Sketcher.Constraint("Equal", 1, 2),
    Sketcher.Constraint("Equal", 2, 3),
    Sketcher.Constraint("Equal", 3, 4),
    Sketcher.Constraint("Equal", 4, 5),
    Sketcher.Constraint("Equal", 5, 6),
    Sketcher.Constraint("Equal", 6, 7),
    Sketcher.Constraint("Equal", 7, 8),
    Sketcher.Constraint("Equal", 8, 9),
    Sketcher.Constraint("Symmetric", 4, 3, 5, 3, -2),
    Sketcher.Constraint("Symmetric", 3, 3, 6, 3, -2),
    Sketcher.Constraint("Symmetric", 2, 3, 7, 3, -2),
    Sketcher.Constraint("Symmetric", 0, 3, 8, 3, -2),
    Sketcher.Constraint("Symmetric", 1, 3, 9, 3, -2),
    Sketcher.Constraint("Horizontal", 2, 3, 3, 3),
    Sketcher.Constraint("Vertical", 0, 3, 1, 3),
    Sketcher.Constraint("Diameter", 0, Q("0.5 mm")),
    Sketcher.Constraint("DistanceY", -1, 1, 2, 3, Q("26 mm")),
    Sketcher.Constraint("DistanceY", -1, 1, 4, 3, Q("24 mm")),
    Sketcher.Constraint("DistanceX", 0, 3, -1, 1, Q("136.5 mm")),
    Sketcher.Constraint("DistanceY", 1, 3, 0, 3, Q("5.5 mm")),
    Sketcher.Constraint("DistanceX", 2, 3, 3, 3, Q("5.5 mm")),
    Sketcher.Constraint("DistanceX", 4, 3, 5, 3, Q("5.5 mm")),
    Sketcher.Constraint("DistanceX", 2, 3, -1, 1, Q("90.429492 mm")),
    Sketcher.Constraint("DistanceY", -1, 1, 0, 3, Q("43.419873 mm")),
])
pocket4 = body.newObject("PartDesign::Pocket", "Pocket003")
pocket4.Profile = sketch5
pocket4.Length = 10

doc.recompute()
